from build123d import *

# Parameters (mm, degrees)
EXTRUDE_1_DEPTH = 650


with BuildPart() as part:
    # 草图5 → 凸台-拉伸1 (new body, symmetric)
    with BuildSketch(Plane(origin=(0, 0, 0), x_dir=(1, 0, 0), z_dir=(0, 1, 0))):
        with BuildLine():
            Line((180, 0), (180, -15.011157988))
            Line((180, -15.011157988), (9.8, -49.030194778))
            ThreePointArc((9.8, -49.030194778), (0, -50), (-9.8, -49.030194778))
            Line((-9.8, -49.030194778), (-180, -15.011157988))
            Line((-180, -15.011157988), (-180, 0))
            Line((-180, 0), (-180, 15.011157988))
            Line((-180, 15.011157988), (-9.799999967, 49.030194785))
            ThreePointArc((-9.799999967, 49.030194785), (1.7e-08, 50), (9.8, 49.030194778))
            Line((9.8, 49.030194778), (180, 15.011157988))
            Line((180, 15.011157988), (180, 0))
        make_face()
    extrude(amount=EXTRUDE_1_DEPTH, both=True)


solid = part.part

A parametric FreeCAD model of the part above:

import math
import FreeCAD as App
import Part
import Sketcher
from FreeCAD import Vector
Q = App.Units.Quantity

doc = App.newDocument("Part")
body = doc.addObject("PartDesign::Body", "Body")

# Sketch on XZ plane
sketch1 = body.newObject("Sketcher::SketchObject", "Sketch")
sketch1.AttachmentSupport = (doc.getObject("XZ_Plane"), [""])
sketch1.MapMode = "FlatFace"
sketch1.addGeometry(Part.LineSegment(Vector(10, 49, 0), Vector(180, 15, 0)), False)
sketch1.addGeometry(Part.LineSegment(Vector(180, 15, 0), Vector(180, -15, 0)), False)
sketch1.addGeometry(Part.LineSegment(Vector(180, -15, 0), Vector(10, -49, 0)), False)
sketch1.addGeometry(Part.ArcOfCircle(Part.Circle(Vector(0, 0, 0), Vector(0, 0, 1), 50), math.radians(-101), math.radians(-79)), False)
sketch1.addGeometry(Part.LineSegment(Vector(-10, -49, 0), Vector(-180, -15, 0)), False)
sketch1.addGeometry(Part.LineSegment(Vector(-180, -15, 0), Vector(-180, 15, 0)), False)
sketch1.addGeometry(Part.LineSegment(Vector(-180, 15, 0), Vector(-10, 49, 0)), False)
sketch1.addGeometry(Part.ArcOfCircle(Part.Circle(Vector(0, 0, 0), Vector(0, 0, 1), 50), math.radians(79), math.radians(101)), False)
sketch1.addConstraint(Sketcher.Constraint("Coincident", 0, 2, 1, 1))
sketch1.addConstraint(Sketcher.Constraint("Coincident", 1, 2, 2, 1))
sketch1.addConstraint(Sketcher.Constraint("Tangent", 2, 2, 3, 2))
sketch1.addConstraint(Sketcher.Constraint("Tangent", 3, 1, 4, 1))
sketch1.addConstraint(Sketcher.Constraint("Coincident", 4, 2, 5, 1))
sketch1.addConstraint(Sketcher.Constraint("Coincident", 5, 2, 6, 1))
sketch1.addConstraint(Sketcher.Constraint("Tangent", 6, 2, 7, 2))
sketch1.addConstraint(Sketcher.Constraint("Tangent", 7, 1, 0, 1))
sketch1.addConstraint(Sketcher.Constraint("Vertical", 1))
sketch1.addConstraint(Sketcher.Constraint("Vertical", 5))
sketch1.addConstraint(Sketcher.Constraint("Coincident", 3, 3, -1, 1))
sketch1.addConstraint(Sketcher.Constraint("Coincident", 7, 3, -1, 1))
sketch1.addConstraint(Sketcher.Constraint("Equal", 3, 7))
sketch1.addConstraint(Sketcher.Constraint("Symmetric", 0, 2, 4, 2, -1, 1))
sketch1.addConstraint(Sketcher.Constraint("Parallel", 2, 6))
sketch1.addConstraint(Sketcher.Constraint("Horizontal", 2, 2, 3, 1))
sketch1.addConstraint(Sketcher.Constraint("Radius", 3, Q("50 mm")))
sketch1.addConstraint(Sketcher.Constraint("DistanceX", -1, 1, 0, 2, Q("180 mm")))
sketch1.addConstraint(Sketcher.Constraint("DistanceX", -1, 1, 2, 2, Q("9.8 mm")))
pad1 = body.newObject("PartDesign::Pad", "Pad")
pad1.Profile = sketch1
pad1.Length = 1300
pad1.Midplane = True

doc.recompute()
